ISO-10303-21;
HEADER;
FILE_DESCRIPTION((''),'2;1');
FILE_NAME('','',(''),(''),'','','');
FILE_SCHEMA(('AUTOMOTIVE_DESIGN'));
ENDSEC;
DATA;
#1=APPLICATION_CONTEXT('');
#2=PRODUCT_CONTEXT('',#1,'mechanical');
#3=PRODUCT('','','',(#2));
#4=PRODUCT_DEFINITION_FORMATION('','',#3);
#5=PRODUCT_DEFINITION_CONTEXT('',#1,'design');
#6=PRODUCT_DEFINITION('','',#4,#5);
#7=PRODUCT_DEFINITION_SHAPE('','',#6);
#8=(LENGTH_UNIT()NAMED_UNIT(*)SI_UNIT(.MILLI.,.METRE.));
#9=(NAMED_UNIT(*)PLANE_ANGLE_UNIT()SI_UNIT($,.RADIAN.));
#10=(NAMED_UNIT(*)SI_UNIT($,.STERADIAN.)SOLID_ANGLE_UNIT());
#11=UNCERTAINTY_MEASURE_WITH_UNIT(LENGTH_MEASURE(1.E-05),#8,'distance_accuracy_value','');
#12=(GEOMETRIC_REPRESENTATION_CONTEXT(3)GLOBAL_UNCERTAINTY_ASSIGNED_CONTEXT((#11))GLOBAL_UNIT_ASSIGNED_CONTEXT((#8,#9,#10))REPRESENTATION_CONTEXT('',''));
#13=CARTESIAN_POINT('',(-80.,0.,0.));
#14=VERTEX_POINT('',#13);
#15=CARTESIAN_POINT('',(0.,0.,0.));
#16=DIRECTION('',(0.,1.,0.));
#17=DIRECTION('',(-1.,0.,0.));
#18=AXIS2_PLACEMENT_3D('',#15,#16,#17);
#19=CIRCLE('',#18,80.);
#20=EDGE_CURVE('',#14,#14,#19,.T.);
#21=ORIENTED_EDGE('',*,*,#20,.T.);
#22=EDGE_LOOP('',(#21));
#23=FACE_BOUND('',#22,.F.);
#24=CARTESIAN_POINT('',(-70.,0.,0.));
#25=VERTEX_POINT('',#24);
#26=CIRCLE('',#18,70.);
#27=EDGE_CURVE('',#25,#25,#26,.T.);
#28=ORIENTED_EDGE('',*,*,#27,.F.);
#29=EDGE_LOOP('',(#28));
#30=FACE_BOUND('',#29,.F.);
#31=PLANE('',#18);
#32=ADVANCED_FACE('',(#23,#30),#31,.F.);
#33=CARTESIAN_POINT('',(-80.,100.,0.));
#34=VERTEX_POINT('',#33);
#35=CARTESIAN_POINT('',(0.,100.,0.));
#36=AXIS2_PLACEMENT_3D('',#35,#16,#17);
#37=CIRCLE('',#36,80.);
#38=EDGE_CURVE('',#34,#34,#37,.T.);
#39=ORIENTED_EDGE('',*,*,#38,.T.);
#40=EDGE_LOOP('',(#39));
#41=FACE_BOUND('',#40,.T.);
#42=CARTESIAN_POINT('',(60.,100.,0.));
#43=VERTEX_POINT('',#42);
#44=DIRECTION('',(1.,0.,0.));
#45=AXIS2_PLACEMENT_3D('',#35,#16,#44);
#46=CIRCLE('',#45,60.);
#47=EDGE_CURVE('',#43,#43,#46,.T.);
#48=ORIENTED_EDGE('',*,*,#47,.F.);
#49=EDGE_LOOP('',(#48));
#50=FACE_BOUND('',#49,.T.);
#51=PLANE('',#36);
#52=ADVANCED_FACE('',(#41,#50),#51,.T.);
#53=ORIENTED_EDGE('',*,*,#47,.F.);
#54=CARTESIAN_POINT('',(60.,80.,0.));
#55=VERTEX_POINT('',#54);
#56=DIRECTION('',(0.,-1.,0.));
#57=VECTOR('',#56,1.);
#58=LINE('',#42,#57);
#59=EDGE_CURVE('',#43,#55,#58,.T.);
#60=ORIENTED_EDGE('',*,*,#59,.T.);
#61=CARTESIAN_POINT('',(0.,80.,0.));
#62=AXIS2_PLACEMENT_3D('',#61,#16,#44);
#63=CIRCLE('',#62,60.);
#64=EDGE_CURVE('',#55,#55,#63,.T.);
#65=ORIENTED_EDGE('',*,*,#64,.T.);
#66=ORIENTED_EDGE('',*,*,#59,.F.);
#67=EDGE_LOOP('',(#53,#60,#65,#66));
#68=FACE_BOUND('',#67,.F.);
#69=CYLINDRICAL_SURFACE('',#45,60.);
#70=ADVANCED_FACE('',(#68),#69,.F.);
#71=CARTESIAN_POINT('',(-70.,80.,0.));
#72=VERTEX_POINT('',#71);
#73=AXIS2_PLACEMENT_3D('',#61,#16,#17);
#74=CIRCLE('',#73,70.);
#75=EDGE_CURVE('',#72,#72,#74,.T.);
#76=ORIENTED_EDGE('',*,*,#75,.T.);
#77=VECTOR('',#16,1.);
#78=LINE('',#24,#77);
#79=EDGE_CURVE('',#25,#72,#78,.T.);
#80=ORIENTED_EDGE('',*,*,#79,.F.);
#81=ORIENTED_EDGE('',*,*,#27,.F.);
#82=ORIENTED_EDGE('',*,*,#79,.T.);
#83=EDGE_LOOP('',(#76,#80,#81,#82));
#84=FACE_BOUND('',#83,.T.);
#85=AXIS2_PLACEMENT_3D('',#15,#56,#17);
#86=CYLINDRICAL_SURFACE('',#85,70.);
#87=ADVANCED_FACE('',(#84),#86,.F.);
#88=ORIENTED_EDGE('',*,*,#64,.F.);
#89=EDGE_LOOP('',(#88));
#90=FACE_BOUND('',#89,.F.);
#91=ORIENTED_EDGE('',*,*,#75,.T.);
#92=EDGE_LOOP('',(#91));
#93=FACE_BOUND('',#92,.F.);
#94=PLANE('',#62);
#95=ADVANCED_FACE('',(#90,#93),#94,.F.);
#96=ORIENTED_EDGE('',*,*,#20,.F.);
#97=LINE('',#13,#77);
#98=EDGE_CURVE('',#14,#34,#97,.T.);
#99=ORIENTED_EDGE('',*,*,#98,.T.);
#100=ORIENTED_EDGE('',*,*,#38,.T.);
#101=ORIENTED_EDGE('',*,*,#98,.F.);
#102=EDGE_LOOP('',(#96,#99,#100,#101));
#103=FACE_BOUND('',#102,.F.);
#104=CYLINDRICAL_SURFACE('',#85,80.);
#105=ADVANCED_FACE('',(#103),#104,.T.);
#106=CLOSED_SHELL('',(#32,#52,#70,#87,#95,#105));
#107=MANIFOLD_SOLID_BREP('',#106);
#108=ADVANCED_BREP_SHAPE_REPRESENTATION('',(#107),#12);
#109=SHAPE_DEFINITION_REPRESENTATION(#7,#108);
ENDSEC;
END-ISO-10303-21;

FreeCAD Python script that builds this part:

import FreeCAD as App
import Part
import Sketcher

V = App.Vector
Q = App.Units.Quantity

doc = App.newDocument("Part")
body = doc.addObject("PartDesign::Body", "Body")

# Sketch on XZ plane
sketch1 = body.newObject("Sketcher::SketchObject", "Sketch")
sketch1.AttachmentSupport = (doc.getObject("XZ_Plane"), [""])
sketch1.MapMode = "FlatFace"
sketch1.addGeometry([
    Part.Circle(V(0, 0, 0), V(0, 0, 1), 80),
    Part.Circle(V(0, 0, 0), V(0, 0, 1), 70),
], False)
sketch1.addConstraint([
    Sketcher.Constraint("Coincident", 0, 3, -1, 1),
    Sketcher.Constraint("Coincident", 1, 3, -1, 1),
    Sketcher.Constraint("Diameter", 0, Q("160 mm")),
    Sketcher.Constraint("Diameter", 1, Q("140 mm")),
])
pad1 = body.newObject("PartDesign::Pad", "Pad")
pad1.Profile = sketch1
pad1.Length = 100
pad1.Reversed = True

# Sketch on XZ plane
sketch2 = body.newObject("Sketcher::SketchObject", "Sketch001")
sketch2.AttachmentSupport = (doc.getObject("XZ_Plane"), [""])
sketch2.MapMode = "FlatFace"
sketch2.AttachmentOffset = App.Placement(V(0, 0, -100), App.Rotation())
sketch2.addGeometry([
    Part.Circle(V(0, 0, 0), V(0, 0, 1), 70),
    Part.Circle(V(0, 0, 0), V(0, 0, 1), 60),
], False)
sketch2.addConstraint([
    Sketcher.Constraint("Coincident", 0, 3, -1, 1),
    Sketcher.Constraint("Coincident", 1, 3, -1, 1),
    Sketcher.Constraint("Diameter", 0, Q("140 mm")),
    Sketcher.Constraint("Diameter", 1, Q("120 mm")),
])
pad2 = body.newObject("PartDesign::Pad", "Pad001")
pad2.Profile = sketch2
pad2.Length = 20

doc.recompute()
